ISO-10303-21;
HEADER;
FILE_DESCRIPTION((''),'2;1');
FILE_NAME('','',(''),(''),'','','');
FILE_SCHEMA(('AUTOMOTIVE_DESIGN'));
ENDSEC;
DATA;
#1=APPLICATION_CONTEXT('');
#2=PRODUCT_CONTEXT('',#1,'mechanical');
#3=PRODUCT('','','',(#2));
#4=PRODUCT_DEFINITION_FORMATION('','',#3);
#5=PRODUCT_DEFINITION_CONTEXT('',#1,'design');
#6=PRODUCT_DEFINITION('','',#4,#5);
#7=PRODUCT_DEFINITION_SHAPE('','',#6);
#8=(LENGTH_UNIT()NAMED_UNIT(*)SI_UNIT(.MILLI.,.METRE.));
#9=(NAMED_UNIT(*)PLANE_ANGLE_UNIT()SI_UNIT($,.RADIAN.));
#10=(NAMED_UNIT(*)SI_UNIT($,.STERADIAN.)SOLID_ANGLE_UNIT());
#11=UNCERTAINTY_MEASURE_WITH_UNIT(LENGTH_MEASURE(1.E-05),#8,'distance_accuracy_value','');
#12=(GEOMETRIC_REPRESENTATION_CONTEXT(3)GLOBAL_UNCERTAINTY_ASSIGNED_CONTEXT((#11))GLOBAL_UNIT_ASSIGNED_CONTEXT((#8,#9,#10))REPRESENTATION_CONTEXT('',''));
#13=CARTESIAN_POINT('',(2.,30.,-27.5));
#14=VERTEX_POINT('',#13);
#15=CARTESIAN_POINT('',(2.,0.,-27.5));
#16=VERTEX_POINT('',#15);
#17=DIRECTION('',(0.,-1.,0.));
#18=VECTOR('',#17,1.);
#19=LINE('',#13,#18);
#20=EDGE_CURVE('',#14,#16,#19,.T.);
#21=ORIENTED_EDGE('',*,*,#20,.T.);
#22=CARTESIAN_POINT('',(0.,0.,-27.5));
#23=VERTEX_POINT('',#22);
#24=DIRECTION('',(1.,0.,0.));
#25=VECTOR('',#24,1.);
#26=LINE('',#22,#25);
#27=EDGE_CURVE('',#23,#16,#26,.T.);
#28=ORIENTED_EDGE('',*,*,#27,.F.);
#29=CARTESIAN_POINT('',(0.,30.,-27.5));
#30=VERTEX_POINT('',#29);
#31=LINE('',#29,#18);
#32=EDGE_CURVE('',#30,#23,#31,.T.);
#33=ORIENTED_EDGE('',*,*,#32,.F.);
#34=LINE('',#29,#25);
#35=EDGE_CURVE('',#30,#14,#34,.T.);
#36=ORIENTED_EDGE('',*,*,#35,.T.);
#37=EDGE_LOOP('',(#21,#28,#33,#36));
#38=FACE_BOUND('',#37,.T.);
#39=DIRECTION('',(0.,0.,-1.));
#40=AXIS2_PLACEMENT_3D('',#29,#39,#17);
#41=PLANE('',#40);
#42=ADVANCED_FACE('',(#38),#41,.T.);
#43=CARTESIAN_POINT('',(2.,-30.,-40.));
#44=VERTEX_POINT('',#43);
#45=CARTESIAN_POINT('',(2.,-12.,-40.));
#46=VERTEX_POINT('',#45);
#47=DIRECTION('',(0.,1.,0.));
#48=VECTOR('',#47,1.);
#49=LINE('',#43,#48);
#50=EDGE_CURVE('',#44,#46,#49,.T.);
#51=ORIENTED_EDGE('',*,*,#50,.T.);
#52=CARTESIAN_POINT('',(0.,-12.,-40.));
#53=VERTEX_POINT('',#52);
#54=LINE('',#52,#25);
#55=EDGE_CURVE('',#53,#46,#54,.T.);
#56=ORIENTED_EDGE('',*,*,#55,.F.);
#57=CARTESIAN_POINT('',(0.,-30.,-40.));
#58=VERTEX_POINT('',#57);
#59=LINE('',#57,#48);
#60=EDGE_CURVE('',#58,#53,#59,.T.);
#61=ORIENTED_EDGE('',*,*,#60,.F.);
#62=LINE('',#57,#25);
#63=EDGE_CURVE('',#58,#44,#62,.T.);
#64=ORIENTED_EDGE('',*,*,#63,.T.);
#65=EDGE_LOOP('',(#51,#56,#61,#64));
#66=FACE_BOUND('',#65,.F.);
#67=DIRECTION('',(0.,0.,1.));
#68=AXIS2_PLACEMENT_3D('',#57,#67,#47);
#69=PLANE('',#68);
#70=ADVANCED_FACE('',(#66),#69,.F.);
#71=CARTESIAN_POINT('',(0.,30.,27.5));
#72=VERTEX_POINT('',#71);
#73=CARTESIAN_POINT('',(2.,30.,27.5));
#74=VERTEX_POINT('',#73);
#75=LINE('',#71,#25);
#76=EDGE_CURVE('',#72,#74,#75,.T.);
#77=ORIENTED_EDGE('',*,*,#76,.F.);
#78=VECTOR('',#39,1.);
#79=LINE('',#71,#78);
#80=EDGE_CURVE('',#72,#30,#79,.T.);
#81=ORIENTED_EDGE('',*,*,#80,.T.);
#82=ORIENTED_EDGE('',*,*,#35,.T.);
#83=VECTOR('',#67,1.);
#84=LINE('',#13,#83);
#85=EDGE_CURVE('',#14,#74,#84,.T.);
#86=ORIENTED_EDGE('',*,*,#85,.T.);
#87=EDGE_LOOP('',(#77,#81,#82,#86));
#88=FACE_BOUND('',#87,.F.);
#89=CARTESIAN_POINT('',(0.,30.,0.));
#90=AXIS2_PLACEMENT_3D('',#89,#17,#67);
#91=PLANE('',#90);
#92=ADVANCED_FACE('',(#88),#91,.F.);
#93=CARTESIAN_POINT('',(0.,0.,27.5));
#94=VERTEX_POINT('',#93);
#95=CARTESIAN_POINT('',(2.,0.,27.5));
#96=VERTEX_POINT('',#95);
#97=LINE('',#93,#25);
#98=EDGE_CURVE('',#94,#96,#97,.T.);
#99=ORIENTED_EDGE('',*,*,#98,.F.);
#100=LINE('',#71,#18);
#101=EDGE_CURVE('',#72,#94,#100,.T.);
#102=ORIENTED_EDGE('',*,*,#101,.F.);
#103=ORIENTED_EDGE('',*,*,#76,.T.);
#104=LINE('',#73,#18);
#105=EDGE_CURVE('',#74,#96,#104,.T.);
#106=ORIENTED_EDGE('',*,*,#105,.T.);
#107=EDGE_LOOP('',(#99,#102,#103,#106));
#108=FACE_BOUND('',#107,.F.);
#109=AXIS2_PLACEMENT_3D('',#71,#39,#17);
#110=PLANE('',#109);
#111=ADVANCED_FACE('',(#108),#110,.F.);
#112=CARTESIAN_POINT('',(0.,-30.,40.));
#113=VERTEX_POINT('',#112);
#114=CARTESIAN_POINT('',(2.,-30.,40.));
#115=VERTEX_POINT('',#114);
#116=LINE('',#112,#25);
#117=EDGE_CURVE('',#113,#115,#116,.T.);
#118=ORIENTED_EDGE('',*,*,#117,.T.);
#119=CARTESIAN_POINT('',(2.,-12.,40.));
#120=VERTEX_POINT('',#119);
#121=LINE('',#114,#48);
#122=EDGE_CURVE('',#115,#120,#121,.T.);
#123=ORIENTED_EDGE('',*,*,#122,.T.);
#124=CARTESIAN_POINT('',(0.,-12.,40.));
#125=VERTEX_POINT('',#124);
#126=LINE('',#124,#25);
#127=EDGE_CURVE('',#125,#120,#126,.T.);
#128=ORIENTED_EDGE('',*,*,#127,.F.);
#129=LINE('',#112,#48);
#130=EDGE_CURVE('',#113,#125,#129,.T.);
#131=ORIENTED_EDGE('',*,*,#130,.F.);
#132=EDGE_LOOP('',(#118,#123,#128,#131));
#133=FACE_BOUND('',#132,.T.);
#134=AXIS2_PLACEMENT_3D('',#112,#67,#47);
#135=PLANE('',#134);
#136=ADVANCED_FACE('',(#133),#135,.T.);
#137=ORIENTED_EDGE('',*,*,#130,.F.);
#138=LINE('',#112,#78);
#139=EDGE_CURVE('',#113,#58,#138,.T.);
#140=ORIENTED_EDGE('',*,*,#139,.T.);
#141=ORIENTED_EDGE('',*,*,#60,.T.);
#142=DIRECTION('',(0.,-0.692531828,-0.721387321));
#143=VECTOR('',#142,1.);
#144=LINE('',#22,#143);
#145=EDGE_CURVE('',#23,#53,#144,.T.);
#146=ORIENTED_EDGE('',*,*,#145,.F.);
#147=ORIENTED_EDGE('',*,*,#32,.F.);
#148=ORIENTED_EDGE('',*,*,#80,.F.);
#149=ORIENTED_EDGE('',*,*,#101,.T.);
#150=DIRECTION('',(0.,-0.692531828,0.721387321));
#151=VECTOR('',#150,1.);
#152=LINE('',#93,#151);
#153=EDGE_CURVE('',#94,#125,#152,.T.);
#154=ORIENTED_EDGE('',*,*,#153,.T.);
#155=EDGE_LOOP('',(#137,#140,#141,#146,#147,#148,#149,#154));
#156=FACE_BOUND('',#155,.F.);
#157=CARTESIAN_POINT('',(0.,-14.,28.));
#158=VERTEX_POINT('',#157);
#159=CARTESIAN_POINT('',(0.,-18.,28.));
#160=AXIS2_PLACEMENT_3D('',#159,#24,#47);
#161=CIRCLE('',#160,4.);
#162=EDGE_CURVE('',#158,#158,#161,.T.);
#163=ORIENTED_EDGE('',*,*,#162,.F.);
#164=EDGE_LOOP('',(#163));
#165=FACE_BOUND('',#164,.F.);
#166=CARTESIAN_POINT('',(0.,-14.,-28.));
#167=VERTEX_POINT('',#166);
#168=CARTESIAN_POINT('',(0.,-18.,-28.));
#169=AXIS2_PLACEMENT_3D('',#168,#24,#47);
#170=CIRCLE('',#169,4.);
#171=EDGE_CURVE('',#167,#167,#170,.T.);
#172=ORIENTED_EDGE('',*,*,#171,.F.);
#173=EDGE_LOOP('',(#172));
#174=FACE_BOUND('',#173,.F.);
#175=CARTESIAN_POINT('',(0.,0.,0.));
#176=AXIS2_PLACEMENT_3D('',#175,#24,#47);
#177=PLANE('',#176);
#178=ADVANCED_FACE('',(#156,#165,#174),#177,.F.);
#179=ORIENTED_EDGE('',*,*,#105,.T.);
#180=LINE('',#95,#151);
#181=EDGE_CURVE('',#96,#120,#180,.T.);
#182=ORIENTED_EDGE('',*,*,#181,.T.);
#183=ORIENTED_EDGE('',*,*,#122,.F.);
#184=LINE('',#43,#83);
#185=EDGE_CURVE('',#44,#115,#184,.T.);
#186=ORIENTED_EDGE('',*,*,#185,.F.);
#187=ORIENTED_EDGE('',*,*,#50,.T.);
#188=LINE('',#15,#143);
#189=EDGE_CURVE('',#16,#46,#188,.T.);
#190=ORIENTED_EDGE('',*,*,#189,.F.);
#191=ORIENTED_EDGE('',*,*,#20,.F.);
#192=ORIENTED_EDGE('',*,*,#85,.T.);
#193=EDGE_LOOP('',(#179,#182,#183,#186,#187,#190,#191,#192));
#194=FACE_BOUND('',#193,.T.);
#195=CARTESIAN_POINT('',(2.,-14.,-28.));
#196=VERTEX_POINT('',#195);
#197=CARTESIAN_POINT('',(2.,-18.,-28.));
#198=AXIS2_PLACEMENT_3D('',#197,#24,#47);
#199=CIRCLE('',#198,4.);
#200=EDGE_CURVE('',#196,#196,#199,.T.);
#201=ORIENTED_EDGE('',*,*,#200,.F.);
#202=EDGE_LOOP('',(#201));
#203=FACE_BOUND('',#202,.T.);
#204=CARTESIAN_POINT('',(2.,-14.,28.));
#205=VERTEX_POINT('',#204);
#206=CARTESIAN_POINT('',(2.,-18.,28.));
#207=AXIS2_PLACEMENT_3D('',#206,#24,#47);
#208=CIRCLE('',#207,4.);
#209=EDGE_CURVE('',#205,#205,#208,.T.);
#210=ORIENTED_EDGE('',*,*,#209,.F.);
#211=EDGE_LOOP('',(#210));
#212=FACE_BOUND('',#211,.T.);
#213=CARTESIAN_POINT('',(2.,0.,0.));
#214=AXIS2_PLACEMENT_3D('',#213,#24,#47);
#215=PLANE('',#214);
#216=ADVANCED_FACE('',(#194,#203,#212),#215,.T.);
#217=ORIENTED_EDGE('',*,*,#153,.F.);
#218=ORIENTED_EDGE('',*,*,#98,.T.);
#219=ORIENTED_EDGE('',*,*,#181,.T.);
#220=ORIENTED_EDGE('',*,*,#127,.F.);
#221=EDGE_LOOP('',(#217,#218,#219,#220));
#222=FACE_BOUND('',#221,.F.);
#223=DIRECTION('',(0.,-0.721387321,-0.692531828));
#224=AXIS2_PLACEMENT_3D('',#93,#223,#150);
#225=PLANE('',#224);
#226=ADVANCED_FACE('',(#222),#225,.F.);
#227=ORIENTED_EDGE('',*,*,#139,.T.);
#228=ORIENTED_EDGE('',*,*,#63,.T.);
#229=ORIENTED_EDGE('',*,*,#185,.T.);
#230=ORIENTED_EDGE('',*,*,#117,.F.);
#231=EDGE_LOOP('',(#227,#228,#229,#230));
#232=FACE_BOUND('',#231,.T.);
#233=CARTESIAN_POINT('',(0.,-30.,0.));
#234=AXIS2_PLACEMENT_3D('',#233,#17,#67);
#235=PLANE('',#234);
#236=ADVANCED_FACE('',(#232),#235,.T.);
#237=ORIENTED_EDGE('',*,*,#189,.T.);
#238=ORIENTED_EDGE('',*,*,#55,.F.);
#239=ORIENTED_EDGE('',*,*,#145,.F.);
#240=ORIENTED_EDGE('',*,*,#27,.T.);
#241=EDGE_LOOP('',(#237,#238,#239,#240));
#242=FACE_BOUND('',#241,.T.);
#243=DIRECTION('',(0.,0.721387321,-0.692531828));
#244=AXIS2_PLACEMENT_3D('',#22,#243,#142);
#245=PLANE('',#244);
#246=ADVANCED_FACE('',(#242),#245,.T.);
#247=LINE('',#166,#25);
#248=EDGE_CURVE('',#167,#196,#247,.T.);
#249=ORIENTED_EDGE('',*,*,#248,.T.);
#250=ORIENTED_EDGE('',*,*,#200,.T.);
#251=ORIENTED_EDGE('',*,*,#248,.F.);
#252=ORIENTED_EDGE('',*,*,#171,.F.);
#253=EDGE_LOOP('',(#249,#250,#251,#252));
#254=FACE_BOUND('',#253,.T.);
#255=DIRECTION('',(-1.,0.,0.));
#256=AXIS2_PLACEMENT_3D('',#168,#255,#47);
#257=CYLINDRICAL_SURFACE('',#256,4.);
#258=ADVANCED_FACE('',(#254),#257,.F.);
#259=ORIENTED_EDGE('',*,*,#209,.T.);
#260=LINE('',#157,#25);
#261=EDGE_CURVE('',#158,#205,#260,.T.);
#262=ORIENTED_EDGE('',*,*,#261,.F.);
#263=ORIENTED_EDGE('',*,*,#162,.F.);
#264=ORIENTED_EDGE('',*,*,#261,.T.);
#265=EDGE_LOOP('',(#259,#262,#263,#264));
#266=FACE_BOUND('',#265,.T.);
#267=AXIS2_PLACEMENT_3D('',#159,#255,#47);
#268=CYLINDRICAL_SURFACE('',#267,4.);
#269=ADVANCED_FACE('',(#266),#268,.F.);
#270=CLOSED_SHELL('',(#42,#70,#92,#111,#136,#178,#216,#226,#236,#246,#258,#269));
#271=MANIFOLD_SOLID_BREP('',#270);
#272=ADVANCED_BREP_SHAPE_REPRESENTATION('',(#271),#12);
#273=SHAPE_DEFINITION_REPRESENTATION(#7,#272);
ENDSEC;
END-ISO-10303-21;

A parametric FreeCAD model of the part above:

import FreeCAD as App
import Part
import Sketcher

V = App.Vector
Q = App.Units.Quantity

doc = App.newDocument("Part")
body = doc.addObject("PartDesign::Body", "Body")

# Sketch on YZ plane
sketch1 = body.newObject("Sketcher::SketchObject", "Sketch")
sketch1.AttachmentSupport = (doc.getObject("YZ_Plane"), [""])
sketch1.MapMode = "FlatFace"
sketch1.addGeometry(Part.LineSegment(V(-30, 40, 0), V(-30, -40, 0)), False)
sketch1.addGeometry(Part.LineSegment(V(-30, -40, 0), V(-12, -40, 0)), False)
sketch1.addGeometry(Part.LineSegment(V(-12, -40, 0), V(0, -27.5, 0)), False)
sketch1.addGeometry(Part.LineSegment(V(0, -27.5, 0), V(30, -27.5, 0)), False)
sketch1.addGeometry(Part.LineSegment(V(30, -27.5, 0), V(30, 27.5, 0)), False)
sketch1.addGeometry(Part.LineSegment(V(30, 27.5, 0), V(0, 27.5, 0)), False)
sketch1.addGeometry(Part.LineSegment(V(0, 27.5, 0), V(-12, 40, 0)), False)
sketch1.addGeometry(Part.LineSegment(V(-12, 40, 0), V(-30, 40, 0)), False)
sketch1.addGeometry(Part.Circle(V(-18, 28, 0), V(0, 0, 1), 4), False)
sketch1.addGeometry(Part.Circle(V(-18, -28, 0), V(0, 0, 1), 4), False)
sketch1.addConstraint(Sketcher.Constraint("Coincident", 0, 2, 1, 1))
sketch1.addConstraint(Sketcher.Constraint("Coincident", 1, 2, 2, 1))
sketch1.addConstraint(Sketcher.Constraint("Coincident", 2, 2, 3, 1))
sketch1.addConstraint(Sketcher.Constraint("Coincident", 3, 2, 4, 1))
sketch1.addConstraint(Sketcher.Constraint("Coincident", 4, 2, 5, 1))
sketch1.addConstraint(Sketcher.Constraint("Coincident", 5, 2, 6, 1))
sketch1.addConstraint(Sketcher.Constraint("Coincident", 6, 2, 7, 1))
sketch1.addConstraint(Sketcher.Constraint("Coincident", 7, 2, 0, 1))
sketch1.addConstraint(Sketcher.Constraint("Vertical", 0))
sketch1.addConstraint(Sketcher.Constraint("Horizontal", 1))
sketch1.addConstraint(Sketcher.Constraint("Horizontal", 3))
sketch1.addConstraint(Sketcher.Constraint("Vertical", 4))
sketch1.addConstraint(Sketcher.Constraint("Horizontal", 5))
sketch1.addConstraint(Sketcher.Constraint("Horizontal", 7))
sketch1.addConstraint(Sketcher.Constraint("Equal", 8, 9))
sketch1.addConstraint(Sketcher.Constraint("Symmetric", 2, 2, 5, 2, -1, 1))
sketch1.addConstraint(Sketcher.Constraint("Symmetric", 8, 3, 9, 3, -1))
sketch1.addConstraint(Sketcher.Constraint("Symmetric", 1, 2, 6, 2, -1))
sketch1.addConstraint(Sketcher.Constraint("PointOnObject", 2, 2, -2))
sketch1.addConstraint(Sketcher.Constraint("Diameter", 8, Q("8 mm")))
sketch1.addConstraint(Sketcher.Constraint("DistanceX", 1, 1, 1, 2, Q("18 mm")))
sketch1.addConstraint(Sketcher.Constraint("DistanceX", 3, 1, 3, 2, Q("30 mm")))
sketch1.addConstraint(Sketcher.Constraint("DistanceY", 4, 1, 4, 2, Q("55 mm")))
sketch1.addConstraint(Sketcher.Constraint("DistanceX", 8, 3, -1, 1, Q("18 mm")))
sketch1.addConstraint(Sketcher.Constraint("DistanceX", 0, 2, -1, 1, Q("30 mm")))
sketch1.addConstraint(Sketcher.Constraint("DistanceY", 0, 2, -1, 1, Q("40 mm")))
sketch1.addConstraint(Sketcher.Constraint("DistanceY", 0, 2, 9, 3, Q("12 mm")))
pad1 = body.newObject("PartDesign::Pad", "Pad")
pad1.Profile = sketch1
pad1.Length = 2

doc.recompute()
